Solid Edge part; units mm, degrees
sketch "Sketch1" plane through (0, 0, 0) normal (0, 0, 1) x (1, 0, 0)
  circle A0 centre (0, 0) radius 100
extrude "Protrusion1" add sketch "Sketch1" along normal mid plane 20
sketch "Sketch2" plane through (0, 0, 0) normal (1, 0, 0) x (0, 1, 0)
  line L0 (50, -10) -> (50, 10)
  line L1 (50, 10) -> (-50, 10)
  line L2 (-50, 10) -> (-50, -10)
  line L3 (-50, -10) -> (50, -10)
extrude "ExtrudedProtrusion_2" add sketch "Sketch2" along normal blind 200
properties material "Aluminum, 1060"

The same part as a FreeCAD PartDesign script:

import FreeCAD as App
import Part
import Sketcher
from FreeCAD import Vector
Q = App.Units.Quantity


def add_polygon(sketch, points):
    """Adds a closed chain of lines whose ends are joined by coincident constraints."""
    first, n = sketch.GeometryCount, len(points)
    for a, b in zip(points, points[1:] + points[:1]):
        sketch.addGeometry(Part.LineSegment(App.Vector(*a, 0), App.Vector(*b, 0)), False)
    for i in range(n):
        sketch.addConstraint(Sketcher.Constraint("Coincident", first + i, 2, first + (i + 1) % n, 1))

doc = App.newDocument("Part")
body = doc.addObject("PartDesign::Body", "Body")

sketch1 = body.newObject("Sketcher::SketchObject", "Sketch")
sketch1.AttachmentSupport = (doc.getObject("XY_Plane"), [""])
sketch1.MapMode = "FlatFace"
sketch1.addGeometry(Part.Circle(Vector(0, 0, 0), Vector(0, 0, 1), 100), False)
sketch1.addConstraint([
    Sketcher.Constraint("Coincident", 0, 3, -1, 1),
    Sketcher.Constraint("Diameter", 0, Q("200 mm")),
])
pad1 = body.newObject("PartDesign::Pad", "Pad")
pad1.Profile = sketch1
pad1.Length = 20
pad1.Midplane = True

sketch2 = body.newObject("Sketcher::SketchObject", "Sketch001")
sketch2.AttachmentSupport = (doc.getObject("YZ_Plane"), [""])
sketch2.MapMode = "FlatFace"
add_polygon(sketch2, [(-50, -10), (50, -10), (50, 10), (-50, 10)])
sketch2.addConstraint([
    Sketcher.Constraint("Horizontal", 0),
    Sketcher.Constraint("Vertical", 1),
    Sketcher.Constraint("Horizontal", 2),
    Sketcher.Constraint("Vertical", 3),
    Sketcher.Constraint("Symmetric", 0, 2, 2, 2, -1, 1),
    Sketcher.Constraint("DistanceX", 0, 1, 0, 2, Q("100 mm")),
    Sketcher.Constraint("DistanceY", 1, 1, 1, 2, Q("20 mm")),
])
pad2 = body.newObject("PartDesign::Pad", "Pad001")
pad2.Profile = sketch2
pad2.Length = 200

doc.recompute()
